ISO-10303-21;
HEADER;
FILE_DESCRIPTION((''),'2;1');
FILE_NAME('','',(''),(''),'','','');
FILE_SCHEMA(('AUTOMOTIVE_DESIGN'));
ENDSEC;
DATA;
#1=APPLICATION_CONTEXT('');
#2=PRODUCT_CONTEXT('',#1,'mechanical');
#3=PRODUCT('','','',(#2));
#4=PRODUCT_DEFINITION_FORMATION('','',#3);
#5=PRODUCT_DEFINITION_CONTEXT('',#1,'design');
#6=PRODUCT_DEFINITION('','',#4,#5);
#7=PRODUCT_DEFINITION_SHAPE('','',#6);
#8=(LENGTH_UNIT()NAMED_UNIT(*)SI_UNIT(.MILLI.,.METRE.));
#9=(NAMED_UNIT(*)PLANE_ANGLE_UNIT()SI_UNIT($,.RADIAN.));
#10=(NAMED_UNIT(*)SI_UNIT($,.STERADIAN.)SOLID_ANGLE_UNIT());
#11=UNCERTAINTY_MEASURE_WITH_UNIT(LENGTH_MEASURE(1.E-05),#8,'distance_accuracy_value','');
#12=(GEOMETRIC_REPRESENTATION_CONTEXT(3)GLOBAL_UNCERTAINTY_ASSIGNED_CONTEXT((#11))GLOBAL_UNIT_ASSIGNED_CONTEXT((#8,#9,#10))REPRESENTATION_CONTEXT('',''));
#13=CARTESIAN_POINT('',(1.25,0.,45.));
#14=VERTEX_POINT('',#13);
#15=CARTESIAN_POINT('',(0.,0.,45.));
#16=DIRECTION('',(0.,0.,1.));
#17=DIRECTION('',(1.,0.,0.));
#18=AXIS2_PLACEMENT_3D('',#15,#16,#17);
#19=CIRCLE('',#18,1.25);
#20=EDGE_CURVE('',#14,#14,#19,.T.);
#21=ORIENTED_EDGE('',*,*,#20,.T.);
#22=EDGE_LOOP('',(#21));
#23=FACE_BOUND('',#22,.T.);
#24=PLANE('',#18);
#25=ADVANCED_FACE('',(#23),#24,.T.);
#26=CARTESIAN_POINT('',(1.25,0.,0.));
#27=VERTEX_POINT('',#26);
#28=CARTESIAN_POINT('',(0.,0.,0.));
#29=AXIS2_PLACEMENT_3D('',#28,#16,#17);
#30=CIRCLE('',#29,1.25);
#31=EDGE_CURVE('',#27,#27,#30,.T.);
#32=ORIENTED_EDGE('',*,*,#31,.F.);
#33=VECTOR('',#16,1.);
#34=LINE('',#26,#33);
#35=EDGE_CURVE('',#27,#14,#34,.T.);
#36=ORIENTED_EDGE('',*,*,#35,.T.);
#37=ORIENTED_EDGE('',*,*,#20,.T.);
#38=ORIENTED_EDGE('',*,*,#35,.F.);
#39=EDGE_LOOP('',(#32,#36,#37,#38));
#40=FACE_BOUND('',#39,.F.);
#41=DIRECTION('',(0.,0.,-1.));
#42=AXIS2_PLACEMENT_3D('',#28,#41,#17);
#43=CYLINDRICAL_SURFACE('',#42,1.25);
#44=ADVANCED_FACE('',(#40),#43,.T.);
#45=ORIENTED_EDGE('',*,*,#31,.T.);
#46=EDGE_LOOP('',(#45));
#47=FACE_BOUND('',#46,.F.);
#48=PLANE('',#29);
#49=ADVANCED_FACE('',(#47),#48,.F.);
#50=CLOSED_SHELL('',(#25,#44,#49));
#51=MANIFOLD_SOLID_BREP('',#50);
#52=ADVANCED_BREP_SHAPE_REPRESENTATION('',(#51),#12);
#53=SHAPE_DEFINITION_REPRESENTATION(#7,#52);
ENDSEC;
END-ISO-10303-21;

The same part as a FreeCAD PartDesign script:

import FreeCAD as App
import Part
import Sketcher
from FreeCAD import Vector

doc = App.newDocument("Part")
params = doc.addObject("Spreadsheet::Sheet", "Params")
for row, (alias, value) in enumerate([
    ("sketch1_diameter", "2.5 mm"),
    ("pad1_length", "45 mm"),
], start=1):
    params.set(f"A{row}", alias)
    params.set(f"B{row}", "=" + value)
    params.setAlias(f"B{row}", alias)

body = doc.addObject("PartDesign::Body", "Body")

# Sketch on XY plane
sketch1 = body.newObject("Sketcher::SketchObject", "Sketch")
sketch1.AttachmentSupport = (doc.getObject("XY_Plane"), [""])
sketch1.MapMode = "FlatFace"
sketch1.addGeometry(Part.Circle(Vector(0, 0, 0), Vector(0, 0, 1), 1.2), False)
sketch1.addConstraint(Sketcher.Constraint("Coincident", 0, 3, -1, 1))
sketch1.addConstraint(Sketcher.Constraint("Diameter", 0, 2.5))
sketch1.setExpression("Constraints[1]", "Params.sketch1_diameter")
pad1 = body.newObject("PartDesign::Pad", "Pad")
pad1.Profile = sketch1
pad1.setExpression("Length", "Params.pad1_length")

doc.recompute()
